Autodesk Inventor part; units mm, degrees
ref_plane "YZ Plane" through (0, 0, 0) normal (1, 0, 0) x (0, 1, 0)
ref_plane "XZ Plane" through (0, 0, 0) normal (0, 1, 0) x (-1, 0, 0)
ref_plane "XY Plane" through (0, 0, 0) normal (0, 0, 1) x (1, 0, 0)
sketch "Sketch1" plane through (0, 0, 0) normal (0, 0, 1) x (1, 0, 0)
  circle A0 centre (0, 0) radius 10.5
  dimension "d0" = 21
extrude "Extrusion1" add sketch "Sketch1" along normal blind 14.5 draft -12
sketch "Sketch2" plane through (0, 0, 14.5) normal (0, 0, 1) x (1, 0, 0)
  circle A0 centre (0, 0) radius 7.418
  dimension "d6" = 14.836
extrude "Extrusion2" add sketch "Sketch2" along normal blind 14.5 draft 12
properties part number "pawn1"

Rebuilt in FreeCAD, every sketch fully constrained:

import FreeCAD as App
import Part
import Sketcher
from FreeCAD import Vector
Q = App.Units.Quantity

doc = App.newDocument("Part")
body = doc.addObject("PartDesign::Body", "Body")

sketch1 = body.newObject("Sketcher::SketchObject", "Sketch")
sketch1.AttachmentSupport = (doc.getObject("XY_Plane"), [""])
sketch1.MapMode = "FlatFace"
sketch1.addGeometry(Part.Circle(Vector(0, 0, 0), Vector(0, 0, 1), 10), False)
sketch1.addConstraint(Sketcher.Constraint("Coincident", 0, 3, -1, 1))
sketch1.addConstraint(Sketcher.Constraint("Diameter", 0, Q("21 mm")))
pad1 = body.newObject("PartDesign::Pad", "Pad")
pad1.Profile = sketch1
pad1.Length = 14.5
pad1.TaperAngle = -12

sketch2 = body.newObject("Sketcher::SketchObject", "Sketch001")
sketch2.AttachmentSupport = (doc.getObject("XY_Plane"), [""])
sketch2.MapMode = "FlatFace"
sketch2.AttachmentOffset = App.Placement(Vector(0, 0, 14.5), App.Rotation())
sketch2.addGeometry(Part.Circle(Vector(0, 0, 0), Vector(0, 0, 1), 7), False)
sketch2.addConstraint(Sketcher.Constraint("Coincident", 0, 3, -1, 1))
sketch2.addConstraint(Sketcher.Constraint("Diameter", 0, Q("14.836 mm")))
pad2 = body.newObject("PartDesign::Pad", "Pad001")
pad2.Profile = sketch2
pad2.Length = 14.5
pad2.TaperAngle = 12

doc.recompute()
